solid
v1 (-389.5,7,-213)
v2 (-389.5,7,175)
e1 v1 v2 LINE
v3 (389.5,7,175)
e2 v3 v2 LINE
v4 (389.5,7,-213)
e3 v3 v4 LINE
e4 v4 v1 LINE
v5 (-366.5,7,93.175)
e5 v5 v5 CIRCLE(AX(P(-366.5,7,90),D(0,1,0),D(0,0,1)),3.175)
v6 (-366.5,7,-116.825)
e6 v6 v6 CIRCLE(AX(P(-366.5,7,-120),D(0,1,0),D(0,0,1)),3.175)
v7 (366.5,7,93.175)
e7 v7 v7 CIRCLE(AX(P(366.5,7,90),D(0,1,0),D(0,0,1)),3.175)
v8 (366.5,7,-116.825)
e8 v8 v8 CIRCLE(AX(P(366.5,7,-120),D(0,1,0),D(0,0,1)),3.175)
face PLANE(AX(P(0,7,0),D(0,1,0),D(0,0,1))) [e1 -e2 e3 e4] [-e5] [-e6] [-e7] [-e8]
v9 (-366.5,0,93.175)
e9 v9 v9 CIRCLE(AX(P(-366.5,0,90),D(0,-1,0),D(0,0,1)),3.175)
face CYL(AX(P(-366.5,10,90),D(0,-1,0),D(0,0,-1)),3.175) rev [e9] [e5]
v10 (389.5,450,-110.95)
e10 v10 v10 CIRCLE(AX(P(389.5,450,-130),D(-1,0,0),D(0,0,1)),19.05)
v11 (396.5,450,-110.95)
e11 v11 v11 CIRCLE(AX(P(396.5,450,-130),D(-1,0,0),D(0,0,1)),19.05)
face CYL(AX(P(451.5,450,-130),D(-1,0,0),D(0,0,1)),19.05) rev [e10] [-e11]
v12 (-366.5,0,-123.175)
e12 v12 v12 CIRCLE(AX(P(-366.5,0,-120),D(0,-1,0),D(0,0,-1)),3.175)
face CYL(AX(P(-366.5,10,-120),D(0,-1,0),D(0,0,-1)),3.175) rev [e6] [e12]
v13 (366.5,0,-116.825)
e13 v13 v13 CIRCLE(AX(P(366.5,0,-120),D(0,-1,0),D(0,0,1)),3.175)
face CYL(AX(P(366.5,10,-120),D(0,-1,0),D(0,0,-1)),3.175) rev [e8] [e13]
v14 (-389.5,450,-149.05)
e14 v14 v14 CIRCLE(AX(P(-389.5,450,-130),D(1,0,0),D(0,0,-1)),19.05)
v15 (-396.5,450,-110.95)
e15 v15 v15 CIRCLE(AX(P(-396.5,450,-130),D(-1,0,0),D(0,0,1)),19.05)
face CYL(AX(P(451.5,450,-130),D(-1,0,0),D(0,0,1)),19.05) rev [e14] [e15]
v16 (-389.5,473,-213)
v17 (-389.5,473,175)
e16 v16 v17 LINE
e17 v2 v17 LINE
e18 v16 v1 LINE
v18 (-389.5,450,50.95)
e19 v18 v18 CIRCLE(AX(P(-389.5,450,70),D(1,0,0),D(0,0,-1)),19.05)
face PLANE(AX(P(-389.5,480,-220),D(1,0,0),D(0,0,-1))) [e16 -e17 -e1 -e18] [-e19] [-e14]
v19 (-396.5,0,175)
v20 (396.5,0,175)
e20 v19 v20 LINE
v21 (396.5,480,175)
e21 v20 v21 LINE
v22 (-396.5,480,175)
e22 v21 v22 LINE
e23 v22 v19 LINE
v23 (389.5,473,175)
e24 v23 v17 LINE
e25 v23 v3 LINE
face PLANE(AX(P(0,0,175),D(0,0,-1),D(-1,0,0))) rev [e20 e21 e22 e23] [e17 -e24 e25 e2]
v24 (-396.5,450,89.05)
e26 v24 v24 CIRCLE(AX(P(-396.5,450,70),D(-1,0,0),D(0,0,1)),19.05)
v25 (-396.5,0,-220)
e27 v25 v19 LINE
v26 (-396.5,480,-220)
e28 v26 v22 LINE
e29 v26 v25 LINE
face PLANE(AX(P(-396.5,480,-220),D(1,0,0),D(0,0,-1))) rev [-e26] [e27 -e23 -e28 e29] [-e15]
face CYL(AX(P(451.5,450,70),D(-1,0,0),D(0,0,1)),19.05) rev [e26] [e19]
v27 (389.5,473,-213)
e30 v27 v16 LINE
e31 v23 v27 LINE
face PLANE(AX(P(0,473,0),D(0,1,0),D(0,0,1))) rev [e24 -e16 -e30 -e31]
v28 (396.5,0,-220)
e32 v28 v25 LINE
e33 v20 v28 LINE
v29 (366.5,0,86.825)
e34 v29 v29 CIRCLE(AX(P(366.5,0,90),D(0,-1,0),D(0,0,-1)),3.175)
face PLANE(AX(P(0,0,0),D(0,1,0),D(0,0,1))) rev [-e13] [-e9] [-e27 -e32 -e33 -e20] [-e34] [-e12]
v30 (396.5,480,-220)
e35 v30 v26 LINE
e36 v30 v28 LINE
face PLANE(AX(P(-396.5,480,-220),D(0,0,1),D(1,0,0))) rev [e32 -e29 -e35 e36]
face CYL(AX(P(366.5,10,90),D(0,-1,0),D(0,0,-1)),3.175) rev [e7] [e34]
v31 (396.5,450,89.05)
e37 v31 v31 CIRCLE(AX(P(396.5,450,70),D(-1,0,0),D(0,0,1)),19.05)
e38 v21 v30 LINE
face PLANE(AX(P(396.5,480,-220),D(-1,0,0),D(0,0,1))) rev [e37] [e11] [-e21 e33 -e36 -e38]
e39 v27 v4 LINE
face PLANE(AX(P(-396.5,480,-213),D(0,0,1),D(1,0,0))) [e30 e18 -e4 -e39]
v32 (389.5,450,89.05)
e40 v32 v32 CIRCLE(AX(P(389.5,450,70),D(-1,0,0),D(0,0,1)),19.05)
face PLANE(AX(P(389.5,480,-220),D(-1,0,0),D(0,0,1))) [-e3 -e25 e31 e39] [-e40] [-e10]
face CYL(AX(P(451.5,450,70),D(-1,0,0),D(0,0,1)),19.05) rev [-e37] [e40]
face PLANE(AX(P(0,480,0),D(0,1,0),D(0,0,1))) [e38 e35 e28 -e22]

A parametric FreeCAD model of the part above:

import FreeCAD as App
import Part
import Sketcher
Q = App.Units.Quantity


def faces_at(feature, points):
    """Names of the faces that lie closest to the given points."""
    faces = feature.Shape.Faces
    near = lambda p: min(range(len(faces)), key=lambda i: faces[i].distToShape(Part.Vertex(*p))[0])
    return sorted({f"Face{near(p) + 1}" for p in points})


def add_polygon(sketch, points):
    """Adds a closed chain of lines whose ends are joined by coincident constraints."""
    first, n = sketch.GeometryCount, len(points)
    for a, b in zip(points, points[1:] + points[:1]):
        sketch.addGeometry(Part.LineSegment(App.Vector(*a, 0), App.Vector(*b, 0)), False)
    for i in range(n):
        sketch.addConstraint(Sketcher.Constraint("Coincident", first + i, 2, first + (i + 1) % n, 1))

doc = App.newDocument("Part")
body = doc.addObject("PartDesign::Body", "Body")

# Sketch on XZ plane
sketch1 = doc.addObject("Sketcher::SketchObject", "Sketch")
body.addObject(sketch1)
sketch1.AttachmentSupport = (doc.XZ_Plane, [""])
sketch1.MapMode = "FlatFace"
add_polygon(sketch1, [(-396.5, -220), (-396.5, 220), (396.5, 220), (396.5, -220)])  # lines 0-3
sketch1.addConstraint([
    Sketcher.Constraint("Vertical", 0),
    Sketcher.Constraint("Horizontal", 1),
    Sketcher.Constraint("Vertical", 2),
    Sketcher.Constraint("Horizontal", 3),
    Sketcher.Constraint("Symmetric", 0, 2, 2, 2, -1, 1),
    Sketcher.Constraint("DistanceX", 1, 1, 1, 2, Q("793 mm")),
    Sketcher.Constraint("DistanceY", 0, 1, 0, 2, Q("440 mm")),
])
pad1 = doc.addObject("PartDesign::Pad", "Pad")
body.addObject(pad1)
pad1.Profile = sketch1
pad1.Length = 480
pad1.Reversed = True
doc.recompute()

thickness = doc.addObject("PartDesign::Thickness", "Thickness")
body.addObject(thickness)
thickness.Base = (pad1, faces_at(pad1, [(0, 240, 220)]))
thickness.Value = 7
thickness.Reversed = True
thickness.Join = "Intersection"

# Sketch on XZ plane
sketch2 = doc.addObject("Sketcher::SketchObject", "Sketch001")
body.addObject(sketch2)
sketch2.AttachmentSupport = (doc.XZ_Plane, [""])
sketch2.MapMode = "FlatFace"
sketch2.addGeometry(Part.Circle(App.Vector(-340.681432, 41.288678, 0), App.Vector(0, 0, 1), 12.7), False)
sketch2.addConstraint([
    Sketcher.Constraint("Diameter", 0, Q("25.4 mm")),
    Sketcher.Constraint("DistanceX", 0, 3, -1, 1, Q("340.681432 mm")),
    Sketcher.Constraint("DistanceY", -1, 1, 0, 3, Q("41.288678 mm")),
])
pocket1 = doc.addObject("PartDesign::Pocket", "Pocket")
body.addObject(pocket1)
pocket1.Profile = sketch2
pocket1.Length = 80

# Sketch on XZ plane
sketch3 = doc.addObject("Sketcher::SketchObject", "Sketch002")
body.addObject(sketch3)
sketch3.AttachmentSupport = (doc.XZ_Plane, [""])
sketch3.MapMode = "FlatFace"
sketch3.addGeometry(Part.Circle(App.Vector(-340.681432, 81.288678, 0), App.Vector(0, 0, 1), 6.35), False)
sketch3.addConstraint([
    Sketcher.Constraint("Diameter", 0, Q("12.7 mm")),
    Sketcher.Constraint("DistanceX", 0, 3, -1, 1, Q("340.681432 mm")),
    Sketcher.Constraint("DistanceY", -1, 1, 0, 3, Q("81.288678 mm")),
])
pocket2 = doc.addObject("PartDesign::Pocket", "Pocket001")
body.addObject(pocket2)
pocket2.Profile = sketch3
pocket2.Length = 10

# Sketch on XZ plane
sketch4 = doc.addObject("Sketcher::SketchObject", "Sketch003")
body.addObject(sketch4)
sketch4.AttachmentSupport = (doc.XZ_Plane, [""])
sketch4.MapMode = "FlatFace"
sketch4.addGeometry(Part.Circle(App.Vector(-340.681432, 121.288678, 0), App.Vector(0, 0, 1), 6.35), False)
sketch4.addConstraint([
    Sketcher.Constraint("Diameter", 0, Q("12.7 mm")),
    Sketcher.Constraint("DistanceX", 0, 3, -1, 1, Q("340.681432 mm")),
    Sketcher.Constraint("DistanceY", -1, 1, 0, 3, Q("121.288678 mm")),
])
pocket3 = doc.addObject("PartDesign::Pocket", "Pocket002")
body.addObject(pocket3)
pocket3.Profile = sketch4
pocket3.Length = 10

# Sketch on YZ plane
sketch5 = doc.addObject("Sketcher::SketchObject", "Sketch004")
body.addObject(sketch5)
sketch5.AttachmentSupport = (doc.YZ_Plane, [""])
sketch5.MapMode = "FlatFace"
sketch5.AttachmentOffset = App.Placement(App.Vector(0, 0, -396.5), App.Rotation())
sketch5.addGeometry([
    Part.Circle(App.Vector(450, -130, 0), App.Vector(0, 0, 1), 19.05),
    Part.Circle(App.Vector(450, 70, 0), App.Vector(0, 0, 1), 19.05),
], False)
sketch5.addConstraint([
    Sketcher.Constraint("Equal", 0, 1),
    Sketcher.Constraint("Vertical", 0, 3, 1, 3),
    Sketcher.Constraint("Diameter", 0, Q("38.1 mm")),
    Sketcher.Constraint("DistanceX", -1, 1, 0, 3, Q("450 mm")),
    Sketcher.Constraint("DistanceY", 0, 3, -1, 1, Q("130 mm")),
    Sketcher.Constraint("DistanceY", -1, 1, 1, 3, Q("70 mm")),
])
pocket4 = doc.addObject("PartDesign::Pocket", "Pocket003")
body.addObject(pocket4)
pocket4.Profile = sketch5
pocket4.Length = 848
pocket4.Reversed = True
doc.recompute()

mirrored = doc.addObject("PartDesign::Mirrored", "Mirrored")
body.addObject(mirrored)
mirrored.Originals = [pocket1, pocket2, pocket3]
mirrored.MirrorPlane = (doc.YZ_Plane, [""])
body.Tip = mirrored

# Sketch on XZ plane
sketch6 = doc.addObject("Sketcher::SketchObject", "Sketch005")
body.addObject(sketch6)
sketch6.AttachmentSupport = (doc.XZ_Plane, [""])
sketch6.MapMode = "FlatFace"
sketch6.addGeometry(Part.Circle(App.Vector(340.681432, -121.411322, 0), App.Vector(0, 0, 1), 12.7), False)
sketch6.addConstraint([
    Sketcher.Constraint("Diameter", 0, Q("25.4 mm")),
    Sketcher.Constraint("DistanceX", -1, 1, 0, 3, Q("340.681432 mm")),
    Sketcher.Constraint("DistanceY", 0, 3, -1, 1, Q("121.411322 mm")),
])
pocket5 = doc.addObject("PartDesign::Pocket", "Pocket004")
body.addObject(pocket5)
pocket5.Profile = sketch6
pocket5.Length = 10

# Sketch on XZ plane
sketch7 = doc.addObject("Sketcher::SketchObject", "Sketch006")
body.addObject(sketch7)
sketch7.AttachmentSupport = (doc.XZ_Plane, [""])
sketch7.MapMode = "FlatFace"
sketch7.AttachmentOffset = App.Placement(App.Vector(0, 0, -7), App.Rotation())
add_polygon(sketch7, [(-358.207565, -41.39869), (-358.207565, 203.976046), (-323.155298, 203.976046), (-323.155298, -41.39869)])  # lines 0-3
sketch7.addConstraint([
    Sketcher.Constraint("Vertical", 0),
    Sketcher.Constraint("Horizontal", 1),
    Sketcher.Constraint("Vertical", 2),
    Sketcher.Constraint("Horizontal", 3),
    Sketcher.Constraint("DistanceX", 1, 1, 1, 2, Q("35.052268 mm")),
    Sketcher.Constraint("DistanceY", 0, 1, 0, 2, Q("245.374736 mm")),
    Sketcher.Constraint("DistanceY", 2, 2, -1, 1, Q("41.39869 mm")),
    Sketcher.Constraint("DistanceX", 0, 2, -1, 1, Q("358.207565 mm")),
])
pad2 = doc.addObject("PartDesign::Pad", "Pad001")
body.addObject(pad2)
pad2.Profile = sketch7
pad2.Length = 7

# Sketch on XZ plane
sketch8 = doc.addObject("Sketcher::SketchObject", "Sketch007")
body.addObject(sketch8)
sketch8.AttachmentSupport = (doc.XZ_Plane, [""])
sketch8.MapMode = "FlatFace"
sketch8.addGeometry([
    Part.Circle(App.Vector(-366.5, -120, 0), App.Vector(0, 0, 1), 3.175),
    Part.Circle(App.Vector(-366.5, 90, 0), App.Vector(0, 0, 1), 3.175),
    Part.Circle(App.Vector(366.5, -120, 0), App.Vector(0, 0, 1), 3.175),
    Part.Circle(App.Vector(366.5, 90, 0), App.Vector(0, 0, 1), 3.175),
], False)
sketch8.addConstraint([
    Sketcher.Constraint("Equal", 0, 1),
    Sketcher.Constraint("Equal", 1, 2),
    Sketcher.Constraint("Equal", 2, 3),
    Sketcher.Constraint("Symmetric", 0, 3, 2, 3, -2),
    Sketcher.Constraint("Symmetric", 1, 3, 3, 3, -2),
    Sketcher.Constraint("Vertical", 0, 3, 1, 3),
    Sketcher.Constraint("Diameter", 0, Q("6.35 mm")),
    Sketcher.Constraint("DistanceY", 0, 3, -1, 1, Q("120 mm")),
    Sketcher.Constraint("DistanceY", -1, 1, 1, 3, Q("90 mm")),
    Sketcher.Constraint("DistanceX", 0, 3, 2, 3, Q("733 mm")),
])
pocket6 = doc.addObject("PartDesign::Pocket", "Pocket005")
body.addObject(pocket6)
pocket6.Profile = sketch8
pocket6.Length = 10

# Sketch on XY plane
sketch9 = doc.addObject("Sketcher::SketchObject", "Sketch008")
body.addObject(sketch9)
sketch9.AttachmentSupport = (doc.XY_Plane, [""])
sketch9.MapMode = "FlatFace"
sketch9.AttachmentOffset = App.Placement(App.Vector(0, 0, -213), App.Rotation())
sketch9.addGeometry([
    Part.Circle(App.Vector(-348, 438, 0), App.Vector(0, 0, 1), 3.175),  # 0
    Part.Circle(App.Vector(0, 438, 0), App.Vector(0, 0, 1), 3.175),  # 1
    Part.Circle(App.Vector(348, 438, 0), App.Vector(0, 0, 1), 3.175),  # 2
    Part.Circle(App.Vector(348, 240, 0), App.Vector(0, 0, 1), 3.175),  # 3
    Part.Circle(App.Vector(348, 42, 0), App.Vector(0, 0, 1), 3.175),  # 4
    Part.Circle(App.Vector(0, 42, 0), App.Vector(0, 0, 1), 3.175),  # 5
    Part.Circle(App.Vector(-348, 42, 0), App.Vector(0, 0, 1), 3.175),  # 6
    Part.Circle(App.Vector(-348, 240, 0), App.Vector(0, 0, 1), 5.554937),  # 7
], False)
sketch9.addConstraint([
    Sketcher.Constraint("Equal", 0, 1),
    Sketcher.Constraint("Equal", 1, 2),
    Sketcher.Constraint("Equal", 2, 3),
    Sketcher.Constraint("Equal", 3, 4),
    Sketcher.Constraint("Equal", 4, 5),
    Sketcher.Constraint("Equal", 5, 6),
    Sketcher.Constraint("Symmetric", 0, 3, 2, 3, -2),
    Sketcher.Constraint("Symmetric", 4, 3, 6, 3, -2),
    Sketcher.Constraint("Symmetric", 3, 3, 7, 3, -2),
    Sketcher.Constraint("PointOnObject", 1, 3, -2),
    Sketcher.Constraint("PointOnObject", 5, 3, -2),
    Sketcher.Constraint("Horizontal", 0, 3, 1, 3),
    Sketcher.Constraint("Horizontal", 4, 3, 5, 3),
    Sketcher.Constraint("Vertical", 2, 3, 3, 3),
    Sketcher.Constraint("Vertical", 3, 3, 4, 3),
    Sketcher.Constraint("Diameter", 0, Q("6.35 mm")),
    Sketcher.Constraint("DistanceX", 0, 3, -1, 1, Q("348 mm")),
    Sketcher.Constraint("DistanceY", -1, 1, 0, 3, Q("438 mm")),
    Sketcher.Constraint("DistanceY", -1, 1, 3, 3, Q("240 mm")),
    Sketcher.Constraint("DistanceY", -1, 1, 4, 3, Q("42 mm")),
    Sketcher.Constraint("Diameter", 7, Q("11.109875 mm")),
])
pocket7 = doc.addObject("PartDesign::Pocket", "Pocket006")
body.addObject(pocket7)
pocket7.Profile = sketch9
pocket7.Length = 10

# Sketch on XY plane
sketch10 = doc.addObject("Sketcher::SketchObject", "Sketch009")
body.addObject(sketch10)
sketch10.AttachmentSupport = (doc.XY_Plane, [""])
sketch10.MapMode = "FlatFace"
sketch10.AttachmentOffset = App.Placement(App.Vector(0, 0, 220), App.Rotation())
add_polygon(sketch10, [(-396.5, 480), (-396.5, 0), (396.5, 0), (396.5, 480)])  # lines 0-3
sketch10.addConstraint([
    Sketcher.Constraint("Vertical", 0),
    Sketcher.Constraint("Horizontal", 1),
    Sketcher.Constraint("Vertical", 2),
    Sketcher.Constraint("Horizontal", 3),
    Sketcher.Constraint("Symmetric", 0, 2, 1, 2, -1, 1),
    Sketcher.Constraint("DistanceX", 1, 1, 1, 2, Q("793 mm")),
    Sketcher.Constraint("DistanceY", 0, 2, 0, 1, Q("480 mm")),
])
pocket8 = doc.addObject("PartDesign::Pocket", "Pocket007")
body.addObject(pocket8)
pocket8.Profile = sketch10
pocket8.Length = 45

# Sketch on XZ plane
sketch11 = doc.addObject("Sketcher::SketchObject", "Sketch010")
body.addObject(sketch11)
sketch11.AttachmentSupport = (doc.XZ_Plane, [""])
sketch11.MapMode = "FlatFace"
add_polygon(sketch11, [(316.419712, 137.609576), (316.419712, -197.580797), (356.642557, -197.580797), (356.642557, 137.609576)])  # lines 0-3
sketch11.addConstraint([
    Sketcher.Constraint("Vertical", 0),
    Sketcher.Constraint("Horizontal", 1),
    Sketcher.Constraint("Vertical", 2),
    Sketcher.Constraint("Horizontal", 3),
    Sketcher.Constraint("DistanceX", 1, 1, 1, 2, Q("40.222845 mm")),
    Sketcher.Constraint("DistanceY", 0, 2, 0, 1, Q("335.190373 mm")),
    Sketcher.Constraint("DistanceX", -1, 1, 0, 2, Q("316.419712 mm")),
    Sketcher.Constraint("DistanceY", 0, 2, -1, 1, Q("197.580797 mm")),
])
pad3 = doc.addObject("PartDesign::Pad", "Pad002")
body.addObject(pad3)
pad3.Profile = sketch11
pad3.Length = 7
pad3.Reversed = True

# Sketch on XY plane
sketch12 = doc.addObject("Sketcher::SketchObject", "Sketch011")
body.addObject(sketch12)
sketch12.AttachmentSupport = (doc.XY_Plane, [""])
sketch12.MapMode = "FlatFace"
sketch12.AttachmentOffset = App.Placement(App.Vector(0, 0, -220), App.Rotation())
add_polygon(sketch12, [(375.280438, 466.769079), (375.280438, 19.444735), (-379.435502, 19.444735), (-379.435502, 466.769079)])  # lines 0-3
sketch12.addConstraint([
    Sketcher.Constraint("Vertical", 0),
    Sketcher.Constraint("Horizontal", 1),
    Sketcher.Constraint("Vertical", 2),
    Sketcher.Constraint("Horizontal", 3),
    Sketcher.Constraint("DistanceX", 1, 2, 1, 1, Q("754.71594 mm")),
    Sketcher.Constraint("DistanceY", 0, 2, 0, 1, Q("447.324344 mm")),
    Sketcher.Constraint("DistanceY", -1, 1, 2, 2, Q("466.769079 mm")),
    Sketcher.Constraint("DistanceX", -1, 1, 0, 2, Q("375.280438 mm")),
])
pad4 = doc.addObject("PartDesign::Pad", "Pad003")
body.addObject(pad4)
pad4.Profile = sketch12
pad4.Length = 7

doc.recompute()
